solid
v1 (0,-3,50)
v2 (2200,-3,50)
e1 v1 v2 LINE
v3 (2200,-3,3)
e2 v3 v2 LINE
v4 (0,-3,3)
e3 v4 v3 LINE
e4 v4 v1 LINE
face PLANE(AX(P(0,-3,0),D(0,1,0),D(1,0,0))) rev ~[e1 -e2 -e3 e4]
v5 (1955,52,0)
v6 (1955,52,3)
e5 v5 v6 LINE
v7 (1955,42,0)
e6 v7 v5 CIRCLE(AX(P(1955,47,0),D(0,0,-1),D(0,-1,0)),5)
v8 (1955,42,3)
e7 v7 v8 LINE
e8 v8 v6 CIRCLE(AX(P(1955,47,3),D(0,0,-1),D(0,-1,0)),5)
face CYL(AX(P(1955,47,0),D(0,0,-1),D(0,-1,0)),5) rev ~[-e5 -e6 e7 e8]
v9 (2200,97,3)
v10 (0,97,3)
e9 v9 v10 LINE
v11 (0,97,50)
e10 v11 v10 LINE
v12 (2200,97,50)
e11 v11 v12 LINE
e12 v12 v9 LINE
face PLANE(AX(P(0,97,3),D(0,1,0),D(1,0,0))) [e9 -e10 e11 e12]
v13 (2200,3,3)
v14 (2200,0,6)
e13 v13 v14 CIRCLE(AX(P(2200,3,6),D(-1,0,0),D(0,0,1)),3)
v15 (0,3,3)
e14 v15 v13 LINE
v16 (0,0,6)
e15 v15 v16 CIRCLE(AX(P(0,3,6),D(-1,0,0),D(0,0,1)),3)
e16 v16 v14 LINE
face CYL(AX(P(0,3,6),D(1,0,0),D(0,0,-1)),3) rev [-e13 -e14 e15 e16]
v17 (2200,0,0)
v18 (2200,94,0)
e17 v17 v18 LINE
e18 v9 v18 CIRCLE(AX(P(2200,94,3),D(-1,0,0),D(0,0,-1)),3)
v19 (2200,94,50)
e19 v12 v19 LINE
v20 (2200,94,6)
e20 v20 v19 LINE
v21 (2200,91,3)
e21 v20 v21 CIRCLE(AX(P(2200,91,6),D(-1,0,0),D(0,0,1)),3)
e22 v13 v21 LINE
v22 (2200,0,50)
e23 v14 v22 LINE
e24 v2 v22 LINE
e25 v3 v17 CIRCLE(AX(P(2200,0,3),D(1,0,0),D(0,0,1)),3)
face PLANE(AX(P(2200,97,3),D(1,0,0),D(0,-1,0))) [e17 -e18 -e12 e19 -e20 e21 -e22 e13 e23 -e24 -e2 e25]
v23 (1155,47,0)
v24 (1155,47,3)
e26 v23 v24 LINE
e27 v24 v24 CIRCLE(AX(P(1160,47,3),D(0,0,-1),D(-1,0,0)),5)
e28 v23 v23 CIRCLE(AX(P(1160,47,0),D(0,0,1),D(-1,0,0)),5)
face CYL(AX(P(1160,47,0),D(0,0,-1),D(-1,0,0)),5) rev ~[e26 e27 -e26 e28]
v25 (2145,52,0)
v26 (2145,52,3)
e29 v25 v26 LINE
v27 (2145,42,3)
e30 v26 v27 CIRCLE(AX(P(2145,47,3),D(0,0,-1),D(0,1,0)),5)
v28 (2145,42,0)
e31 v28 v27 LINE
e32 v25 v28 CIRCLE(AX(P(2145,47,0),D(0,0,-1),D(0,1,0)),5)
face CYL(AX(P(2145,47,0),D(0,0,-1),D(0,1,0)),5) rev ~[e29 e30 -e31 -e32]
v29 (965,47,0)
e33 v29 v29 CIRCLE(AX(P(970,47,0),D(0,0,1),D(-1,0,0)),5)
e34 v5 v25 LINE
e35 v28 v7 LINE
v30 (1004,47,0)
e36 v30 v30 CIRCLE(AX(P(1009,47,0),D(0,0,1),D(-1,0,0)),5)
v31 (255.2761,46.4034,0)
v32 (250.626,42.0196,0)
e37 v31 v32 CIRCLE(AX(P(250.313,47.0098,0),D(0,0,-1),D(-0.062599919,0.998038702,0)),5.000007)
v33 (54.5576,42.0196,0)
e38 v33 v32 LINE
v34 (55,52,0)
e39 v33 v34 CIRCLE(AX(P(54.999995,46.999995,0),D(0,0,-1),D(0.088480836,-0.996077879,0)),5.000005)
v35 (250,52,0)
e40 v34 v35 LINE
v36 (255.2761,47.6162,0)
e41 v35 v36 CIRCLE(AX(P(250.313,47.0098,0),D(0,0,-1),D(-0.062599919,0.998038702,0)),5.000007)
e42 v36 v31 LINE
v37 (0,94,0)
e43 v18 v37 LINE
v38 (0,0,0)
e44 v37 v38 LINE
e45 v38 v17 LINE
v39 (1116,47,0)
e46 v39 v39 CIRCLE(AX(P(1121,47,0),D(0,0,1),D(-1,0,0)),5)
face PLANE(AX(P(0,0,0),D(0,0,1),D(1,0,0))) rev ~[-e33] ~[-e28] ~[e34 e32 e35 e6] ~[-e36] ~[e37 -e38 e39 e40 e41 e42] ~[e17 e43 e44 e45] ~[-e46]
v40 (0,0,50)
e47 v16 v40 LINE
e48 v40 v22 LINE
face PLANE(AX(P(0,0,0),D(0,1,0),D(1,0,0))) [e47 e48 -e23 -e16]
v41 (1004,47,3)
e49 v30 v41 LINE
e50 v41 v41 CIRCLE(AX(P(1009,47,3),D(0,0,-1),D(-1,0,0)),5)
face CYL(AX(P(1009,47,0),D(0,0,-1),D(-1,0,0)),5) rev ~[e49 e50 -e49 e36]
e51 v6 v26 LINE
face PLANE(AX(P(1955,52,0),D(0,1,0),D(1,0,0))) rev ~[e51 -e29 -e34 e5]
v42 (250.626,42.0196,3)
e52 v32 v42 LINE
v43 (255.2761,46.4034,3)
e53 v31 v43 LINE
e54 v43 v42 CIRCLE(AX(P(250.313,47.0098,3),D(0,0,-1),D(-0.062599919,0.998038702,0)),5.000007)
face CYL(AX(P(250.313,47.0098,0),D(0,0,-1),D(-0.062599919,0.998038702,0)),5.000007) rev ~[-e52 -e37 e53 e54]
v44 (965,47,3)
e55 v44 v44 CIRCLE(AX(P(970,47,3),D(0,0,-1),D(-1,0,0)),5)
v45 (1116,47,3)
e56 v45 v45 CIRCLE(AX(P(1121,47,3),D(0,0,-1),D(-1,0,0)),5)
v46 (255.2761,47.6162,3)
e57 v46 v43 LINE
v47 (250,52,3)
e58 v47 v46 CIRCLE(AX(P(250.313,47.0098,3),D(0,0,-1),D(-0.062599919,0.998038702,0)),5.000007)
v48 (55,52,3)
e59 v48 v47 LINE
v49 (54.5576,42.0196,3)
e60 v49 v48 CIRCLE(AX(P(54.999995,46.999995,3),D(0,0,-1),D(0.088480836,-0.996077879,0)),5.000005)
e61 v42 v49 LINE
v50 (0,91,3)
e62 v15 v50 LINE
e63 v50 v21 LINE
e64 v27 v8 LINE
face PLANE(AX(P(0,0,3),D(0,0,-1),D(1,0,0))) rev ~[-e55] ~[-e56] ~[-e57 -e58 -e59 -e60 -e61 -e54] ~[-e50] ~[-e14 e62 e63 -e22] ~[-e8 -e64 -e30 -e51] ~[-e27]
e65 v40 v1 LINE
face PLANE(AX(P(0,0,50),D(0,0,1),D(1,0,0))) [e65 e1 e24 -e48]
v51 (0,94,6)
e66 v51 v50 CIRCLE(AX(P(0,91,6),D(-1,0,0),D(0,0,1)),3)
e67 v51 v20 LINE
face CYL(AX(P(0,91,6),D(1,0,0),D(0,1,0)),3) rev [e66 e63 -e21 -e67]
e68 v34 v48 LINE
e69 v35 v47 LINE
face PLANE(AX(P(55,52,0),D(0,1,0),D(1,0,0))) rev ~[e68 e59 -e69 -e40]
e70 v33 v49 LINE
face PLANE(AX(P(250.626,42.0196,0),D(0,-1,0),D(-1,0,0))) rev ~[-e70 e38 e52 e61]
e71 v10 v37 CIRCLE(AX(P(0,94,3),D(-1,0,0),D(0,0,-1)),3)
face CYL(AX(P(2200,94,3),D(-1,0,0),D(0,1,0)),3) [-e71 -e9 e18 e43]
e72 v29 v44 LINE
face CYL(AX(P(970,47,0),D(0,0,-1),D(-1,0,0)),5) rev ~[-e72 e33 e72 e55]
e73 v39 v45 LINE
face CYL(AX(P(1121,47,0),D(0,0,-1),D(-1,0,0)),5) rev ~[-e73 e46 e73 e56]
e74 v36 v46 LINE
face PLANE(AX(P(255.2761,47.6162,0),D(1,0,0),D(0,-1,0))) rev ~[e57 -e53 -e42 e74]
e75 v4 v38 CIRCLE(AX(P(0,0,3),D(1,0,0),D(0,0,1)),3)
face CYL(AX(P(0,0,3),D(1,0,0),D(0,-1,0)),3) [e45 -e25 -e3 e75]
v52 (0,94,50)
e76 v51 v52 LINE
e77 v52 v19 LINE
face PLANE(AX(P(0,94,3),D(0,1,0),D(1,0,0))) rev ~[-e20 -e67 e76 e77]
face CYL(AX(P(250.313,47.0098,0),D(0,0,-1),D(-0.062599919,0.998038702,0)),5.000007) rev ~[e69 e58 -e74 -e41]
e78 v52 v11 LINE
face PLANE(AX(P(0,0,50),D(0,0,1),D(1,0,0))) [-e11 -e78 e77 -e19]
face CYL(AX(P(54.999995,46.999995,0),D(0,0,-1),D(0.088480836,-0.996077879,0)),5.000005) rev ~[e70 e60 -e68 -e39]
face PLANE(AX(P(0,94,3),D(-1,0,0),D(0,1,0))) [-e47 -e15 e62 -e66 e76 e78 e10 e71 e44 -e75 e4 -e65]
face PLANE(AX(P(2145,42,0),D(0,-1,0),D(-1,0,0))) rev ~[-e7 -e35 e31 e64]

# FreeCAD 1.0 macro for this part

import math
import FreeCAD as App
import Part
import Sketcher


def edges_at(feature, points):
    """Names of the edges that pass closest to the given points."""
    edges = feature.Shape.Edges
    near = lambda p: min(range(len(edges)), key=lambda i: edges[i].distToShape(Part.Vertex(*p))[0])
    return sorted({f"Edge{near(p) + 1}" for p in points})

doc = App.newDocument("Part")
body = doc.addObject("PartDesign::Body", "Body")

sketch1 = doc.addObject("Sketcher::SketchObject", "Sketch")
body.addObject(sketch1)
sketch1.AttachmentSupport = (doc.XY_Plane, [""])
sketch1.MapMode = "FlatFace"
sketch1.addGeometry(Part.LineSegment(App.Vector(2200, 0, 0), App.Vector(0, 0, 0)), False)
sketch1.addGeometry(Part.LineSegment(App.Vector(0, 0, 0), App.Vector(0, -3, 0)), False)
sketch1.addGeometry(Part.LineSegment(App.Vector(0, -3, 0), App.Vector(2200, -3, 0)), False)
sketch1.addGeometry(Part.LineSegment(App.Vector(2200, -3, 0), App.Vector(2200, 0, 0)), False)
sketch1.addConstraint(Sketcher.Constraint("Coincident", 0, 2, 1, 1))
sketch1.addConstraint(Sketcher.Constraint("Coincident", 1, 2, 2, 1))
sketch1.addConstraint(Sketcher.Constraint("Coincident", 2, 2, 3, 1))
sketch1.addConstraint(Sketcher.Constraint("Coincident", 3, 2, 0, 1))
sketch1.addConstraint(Sketcher.Constraint("Horizontal", 0))
sketch1.addConstraint(Sketcher.Constraint("Vertical", 1))
sketch1.addConstraint(Sketcher.Constraint("Horizontal", 2))
sketch1.addConstraint(Sketcher.Constraint("Vertical", 3))
sketch1.addConstraint(Sketcher.Constraint("Coincident", 0, 2, -1, 1))
sketch1.addConstraint(Sketcher.Constraint("DistanceX", 0, 2, 0, 1, 2200.0))
sketch1.addConstraint(Sketcher.Constraint("DistanceY", 1, 2, 1, 1, 3.0))
pad1 = doc.addObject("PartDesign::Pad", "Pad")
body.addObject(pad1)
pad1.Profile = sketch1
pad1.Length = 50

sketch2 = doc.addObject("Sketcher::SketchObject", "Sketch001")
body.addObject(sketch2)
sketch2.AttachmentSupport = (doc.XZ_Plane, [""])
sketch2.MapMode = "FlatFace"
sketch2.addGeometry(Part.LineSegment(App.Vector(2200, 0, 0), App.Vector(0, 0, 0)), False)
sketch2.addGeometry(Part.LineSegment(App.Vector(0, 0, 0), App.Vector(0, 3, 0)), False)
sketch2.addGeometry(Part.LineSegment(App.Vector(0, 3, 0), App.Vector(2200, 3, 0)), False)
sketch2.addGeometry(Part.LineSegment(App.Vector(2200, 3, 0), App.Vector(2200, 0, 0)), False)
sketch2.addConstraint(Sketcher.Constraint("Coincident", 0, 2, 1, 1))
sketch2.addConstraint(Sketcher.Constraint("Coincident", 1, 2, 2, 1))
sketch2.addConstraint(Sketcher.Constraint("Coincident", 2, 2, 3, 1))
sketch2.addConstraint(Sketcher.Constraint("Coincident", 3, 2, 0, 1))
sketch2.addConstraint(Sketcher.Constraint("Horizontal", 0))
sketch2.addConstraint(Sketcher.Constraint("Vertical", 1))
sketch2.addConstraint(Sketcher.Constraint("Horizontal", 2))
sketch2.addConstraint(Sketcher.Constraint("Vertical", 3))
sketch2.addConstraint(Sketcher.Constraint("Coincident", 0, 2, -1, 1))
sketch2.addConstraint(Sketcher.Constraint("DistanceX", 0, 2, 0, 1, 2200.0))
sketch2.addConstraint(Sketcher.Constraint("DistanceY", 1, 1, 1, 2, 3.0))
pad2 = doc.addObject("PartDesign::Pad", "Pad001")
body.addObject(pad2)
pad2.Profile = sketch2
pad2.Length = 97
pad2.Reversed = True

sketch3 = doc.addObject("Sketcher::SketchObject", "Sketch002")
body.addObject(sketch3)
sketch3.AttachmentSupport = (doc.XY_Plane, [""])
sketch3.MapMode = "FlatFace"
sketch3.AttachmentOffset = App.Placement(App.Vector(0, 0, 3), App.Rotation())
sketch3.addGeometry(Part.LineSegment(App.Vector(0, 97, 0), App.Vector(0, 94, 0)), False)
sketch3.addGeometry(Part.LineSegment(App.Vector(0, 94, 0), App.Vector(2200, 94, 0)), False)
sketch3.addGeometry(Part.LineSegment(App.Vector(2200, 94, 0), App.Vector(2200, 97, 0)), False)
sketch3.addGeometry(Part.LineSegment(App.Vector(2200, 97, 0), App.Vector(0, 97, 0)), False)
sketch3.addConstraint(Sketcher.Constraint("Coincident", 0, 2, 1, 1))
sketch3.addConstraint(Sketcher.Constraint("Coincident", 1, 2, 2, 1))
sketch3.addConstraint(Sketcher.Constraint("Coincident", 2, 2, 3, 1))
sketch3.addConstraint(Sketcher.Constraint("Coincident", 3, 2, 0, 1))
sketch3.addConstraint(Sketcher.Constraint("Vertical", 0))
sketch3.addConstraint(Sketcher.Constraint("Horizontal", 1))
sketch3.addConstraint(Sketcher.Constraint("Vertical", 2))
sketch3.addConstraint(Sketcher.Constraint("Horizontal", 3))
sketch3.addConstraint(Sketcher.Constraint("PointOnObject", 0, 2, -2))
sketch3.addConstraint(Sketcher.Constraint("DistanceX", 1, 1, 1, 2, 2200.0))
sketch3.addConstraint(Sketcher.Constraint("DistanceY", 0, 2, 0, 1, 3.0))
sketch3.addConstraint(Sketcher.Constraint("DistanceY", -1, 1, 0, 2, 94.0))
pad3 = doc.addObject("PartDesign::Pad", "Pad002")
body.addObject(pad3)
pad3.Profile = sketch3
pad3.Length = 47
doc.recompute()

fillet = doc.addObject("PartDesign::Fillet", "Fillet")
body.addObject(fillet)
fillet.Base = (pad3, edges_at(pad3, [
    (1100, -3, 0),
    (1100, 97, 0),
    (1100, 0, 3),
    (1100, 94, 3),
]))
fillet.Radius = 3

sketch4 = doc.addObject("Sketcher::SketchObject", "Sketch003")
body.addObject(sketch4)
sketch4.AttachmentSupport = (doc.XY_Plane, [""])
sketch4.MapMode = "FlatFace"
sketch4.addGeometry(Part.ArcOfCircle(Part.Circle(App.Vector(55, 47, 0), App.Vector(0, 0, 1), 5.00001), math.radians(90), math.radians(264.923842)), False)
sketch4.addGeometry(Part.LineSegment(App.Vector(55, 52, 0), App.Vector(250, 52, 0)), False)
sketch4.addGeometry(Part.ArcOfCircle(Part.Circle(App.Vector(250.313, 47.0098, 0), App.Vector(0, 0, 1), 5.000007), math.radians(6.965969), math.radians(93.589058)), False)
sketch4.addGeometry(Part.LineSegment(App.Vector(255.2761, 47.6162, 0), App.Vector(255.2761, 46.4034, 0)), False)
sketch4.addGeometry(Part.ArcOfCircle(Part.Circle(App.Vector(250.313, 47.0098, 0), App.Vector(0, 0, 1), 5.000007), math.radians(-86.410942), math.radians(-6.965969)), False)
sketch4.addGeometry(Part.LineSegment(App.Vector(250.626, 42.0196, 0), App.Vector(54.5576, 42.0196, 0)), False)
sketch4.addConstraint(Sketcher.Constraint("Tangent", 0, 1, 1, 1))
sketch4.addConstraint(Sketcher.Constraint("Coincident", 1, 2, 2, 2))
sketch4.addConstraint(Sketcher.Constraint("Coincident", 2, 1, 3, 1))
sketch4.addConstraint(Sketcher.Constraint("Coincident", 3, 2, 4, 2))
sketch4.addConstraint(Sketcher.Constraint("Coincident", 4, 1, 5, 1))
sketch4.addConstraint(Sketcher.Constraint("Coincident", 5, 2, 0, 2))
sketch4.addConstraint(Sketcher.Constraint("Horizontal", 1))
sketch4.addConstraint(Sketcher.Constraint("Vertical", 3))
sketch4.addConstraint(Sketcher.Constraint("Horizontal", 5))
sketch4.addConstraint(Sketcher.Constraint("Coincident", 4, 3, 2, 3))
sketch4.addConstraint(Sketcher.Constraint("Equal", 0, 2))
sketch4.addConstraint(Sketcher.Constraint("Equal", 2, 4))
sketch4.addConstraint(Sketcher.Constraint("Radius", 0, 5.0))
sketch4.addConstraint(Sketcher.Constraint("DistanceX", 1, 1, 1, 2, 195.0))
sketch4.addConstraint(Sketcher.Constraint("DistanceX", -1, 1, 0, 3, 55.0))
sketch4.addConstraint(Sketcher.Constraint("DistanceY", -1, 1, 0, 3, 47.0))
sketch4.addConstraint(Sketcher.Constraint("DistanceX", 4, 1, 3, 2, 4.65))
sketch4.addConstraint(Sketcher.Constraint("DistanceX", 5, 2, 5, 1, 196.0684))
sketch4.addConstraint(Sketcher.Constraint("DistanceY", 3, 2, 3, 1, 1.2128))
pocket1 = doc.addObject("PartDesign::Pocket", "Pocket")
body.addObject(pocket1)
pocket1.Profile = sketch4
pocket1.Type = "ThroughAll"
pocket1.Reversed = True

sketch5 = doc.addObject("Sketcher::SketchObject", "Sketch004")
body.addObject(sketch5)
sketch5.AttachmentSupport = (doc.XY_Plane, [""])
sketch5.MapMode = "FlatFace"
sketch5.addGeometry(Part.ArcOfCircle(Part.Circle(App.Vector(2145, 47, 0), App.Vector(0, 0, 1), 5), math.radians(-90), math.radians(90)), False)
sketch5.addGeometry(Part.LineSegment(App.Vector(2145, 42, 0), App.Vector(1955, 42, 0)), False)
sketch5.addGeometry(Part.ArcOfCircle(Part.Circle(App.Vector(1955, 47, 0), App.Vector(0, 0, 1), 5), math.radians(90), math.radians(270)), False)
sketch5.addGeometry(Part.LineSegment(App.Vector(1955, 52, 0), App.Vector(2145, 52, 0)), False)
sketch5.addConstraint(Sketcher.Constraint("Tangent", 0, 1, 1, 1))
sketch5.addConstraint(Sketcher.Constraint("Tangent", 1, 2, 2, 2))
sketch5.addConstraint(Sketcher.Constraint("Tangent", 2, 1, 3, 1))
sketch5.addConstraint(Sketcher.Constraint("Tangent", 3, 2, 0, 2))
sketch5.addConstraint(Sketcher.Constraint("Horizontal", 1))
sketch5.addConstraint(Sketcher.Constraint("Horizontal", 3))
sketch5.addConstraint(Sketcher.Constraint("Radius", 0, 5.0))
sketch5.addConstraint(Sketcher.Constraint("DistanceX", 1, 2, 1, 1, 190.0))
sketch5.addConstraint(Sketcher.Constraint("DistanceX", -1, 1, 0, 3, 2145.0))
sketch5.addConstraint(Sketcher.Constraint("DistanceY", -1, 1, 0, 3, 47.0))
pocket2 = doc.addObject("PartDesign::Pocket", "Pocket001")
body.addObject(pocket2)
pocket2.Profile = sketch5
pocket2.Length = 10
pocket2.Reversed = True

sketch6 = doc.addObject("Sketcher::SketchObject", "Sketch005")
body.addObject(sketch6)
sketch6.AttachmentSupport = (doc.XY_Plane, [""])
sketch6.MapMode = "FlatFace"
sketch6.addGeometry(Part.Circle(App.Vector(1160, 47, 0), App.Vector(0, 0, 1), 5), False)
sketch6.addGeometry(Part.Circle(App.Vector(970, 47, 0), App.Vector(0, 0, 1), 5), False)
sketch6.addGeometry(Part.Circle(App.Vector(1009, 47, 0), App.Vector(0, 0, 1), 5), False)
sketch6.addGeometry(Part.Circle(App.Vector(1121, 47, 0), App.Vector(0, 0, 1), 5), False)
sketch6.addConstraint(Sketcher.Constraint("Equal", 0, 1))
sketch6.addConstraint(Sketcher.Constraint("Equal", 1, 2))
sketch6.addConstraint(Sketcher.Constraint("Equal", 2, 3))
sketch6.addConstraint(Sketcher.Constraint("Horizontal", 0, 3, 1, 3))
sketch6.addConstraint(Sketcher.Constraint("Horizontal", 1, 3, 2, 3))
sketch6.addConstraint(Sketcher.Constraint("Horizontal", 2, 3, 3, 3))
sketch6.addConstraint(Sketcher.Constraint("Diameter", 0, 10.0))
sketch6.addConstraint(Sketcher.Constraint("DistanceX", -1, 1, 0, 3, 1160.0))
sketch6.addConstraint(Sketcher.Constraint("DistanceY", -1, 1, 0, 3, 47.0))
sketch6.addConstraint(Sketcher.Constraint("DistanceX", -1, 1, 1, 3, 970.0))
sketch6.addConstraint(Sketcher.Constraint("DistanceX", -1, 1, 2, 3, 1009.0))
sketch6.addConstraint(Sketcher.Constraint("DistanceX", -1, 1, 3, 3, 1121.0))
pocket3 = doc.addObject("PartDesign::Pocket", "Pocket002")
body.addObject(pocket3)
pocket3.Profile = sketch6
pocket3.Type = "ThroughAll"
pocket3.Reversed = True

doc.recompute()
